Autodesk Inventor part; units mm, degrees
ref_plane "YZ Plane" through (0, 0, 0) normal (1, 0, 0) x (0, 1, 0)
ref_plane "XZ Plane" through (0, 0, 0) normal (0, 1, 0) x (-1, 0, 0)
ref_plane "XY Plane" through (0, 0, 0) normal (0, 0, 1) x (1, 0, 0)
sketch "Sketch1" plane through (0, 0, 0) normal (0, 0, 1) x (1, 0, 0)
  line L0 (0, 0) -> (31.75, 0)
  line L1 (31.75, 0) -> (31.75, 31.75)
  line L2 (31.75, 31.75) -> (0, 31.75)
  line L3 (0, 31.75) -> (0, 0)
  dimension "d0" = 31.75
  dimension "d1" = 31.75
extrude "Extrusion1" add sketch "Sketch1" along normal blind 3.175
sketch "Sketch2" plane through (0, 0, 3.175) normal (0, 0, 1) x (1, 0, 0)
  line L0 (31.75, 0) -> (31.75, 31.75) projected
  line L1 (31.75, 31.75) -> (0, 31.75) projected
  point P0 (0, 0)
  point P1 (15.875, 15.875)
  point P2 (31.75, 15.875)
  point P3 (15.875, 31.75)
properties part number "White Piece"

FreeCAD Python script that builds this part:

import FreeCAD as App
import Part
import Sketcher
from FreeCAD import Vector
Q = App.Units.Quantity

doc = App.newDocument("Part")
params = doc.addObject("Spreadsheet::Sheet", "Params")
for row, (alias, value) in enumerate([
    ("sketch1_width", "1.25 in"),
    ("pad1_length", "0.125 in"),
], start=1):
    params.set(f"A{row}", alias)
    params.set(f"B{row}", "=" + value)
    params.setAlias(f"B{row}", alias)

body = doc.addObject("PartDesign::Body", "Body")

sketch1 = body.newObject("Sketcher::SketchObject", "Sketch")
sketch1.AttachmentSupport = (doc.getObject("XY_Plane"), [""])
sketch1.MapMode = "FlatFace"
sketch1.addGeometry([
    Part.LineSegment(Vector(0, 32, 0), Vector(0, 0, 0)),
    Part.LineSegment(Vector(0, 0, 0), Vector(32, 0, 0)),
    Part.LineSegment(Vector(32, 0, 0), Vector(32, 32, 0)),
    Part.LineSegment(Vector(32, 32, 0), Vector(0, 32, 0)),
], False)
sketch1.addConstraint([
    Sketcher.Constraint("Coincident", 0, 2, 1, 1),
    Sketcher.Constraint("Coincident", 1, 2, 2, 1),
    Sketcher.Constraint("Coincident", 2, 2, 3, 1),
    Sketcher.Constraint("Coincident", 3, 2, 0, 1),
    Sketcher.Constraint("Vertical", 0),
    Sketcher.Constraint("Horizontal", 1),
    Sketcher.Constraint("Vertical", 2),
    Sketcher.Constraint("Horizontal", 3),
    Sketcher.Constraint("Coincident", 0, 2, -1, 1),
    Sketcher.Constraint("Equal", 3, 0),
    Sketcher.Constraint("DistanceX", 1, 1, 1, 2, Q("1.25 in")),
])
sketch1.setExpression("Constraints[10]", "Params.sketch1_width")
pad1 = body.newObject("PartDesign::Pad", "Pad")
pad1.Profile = sketch1
pad1.setExpression("Length", "Params.pad1_length")

doc.recompute()
